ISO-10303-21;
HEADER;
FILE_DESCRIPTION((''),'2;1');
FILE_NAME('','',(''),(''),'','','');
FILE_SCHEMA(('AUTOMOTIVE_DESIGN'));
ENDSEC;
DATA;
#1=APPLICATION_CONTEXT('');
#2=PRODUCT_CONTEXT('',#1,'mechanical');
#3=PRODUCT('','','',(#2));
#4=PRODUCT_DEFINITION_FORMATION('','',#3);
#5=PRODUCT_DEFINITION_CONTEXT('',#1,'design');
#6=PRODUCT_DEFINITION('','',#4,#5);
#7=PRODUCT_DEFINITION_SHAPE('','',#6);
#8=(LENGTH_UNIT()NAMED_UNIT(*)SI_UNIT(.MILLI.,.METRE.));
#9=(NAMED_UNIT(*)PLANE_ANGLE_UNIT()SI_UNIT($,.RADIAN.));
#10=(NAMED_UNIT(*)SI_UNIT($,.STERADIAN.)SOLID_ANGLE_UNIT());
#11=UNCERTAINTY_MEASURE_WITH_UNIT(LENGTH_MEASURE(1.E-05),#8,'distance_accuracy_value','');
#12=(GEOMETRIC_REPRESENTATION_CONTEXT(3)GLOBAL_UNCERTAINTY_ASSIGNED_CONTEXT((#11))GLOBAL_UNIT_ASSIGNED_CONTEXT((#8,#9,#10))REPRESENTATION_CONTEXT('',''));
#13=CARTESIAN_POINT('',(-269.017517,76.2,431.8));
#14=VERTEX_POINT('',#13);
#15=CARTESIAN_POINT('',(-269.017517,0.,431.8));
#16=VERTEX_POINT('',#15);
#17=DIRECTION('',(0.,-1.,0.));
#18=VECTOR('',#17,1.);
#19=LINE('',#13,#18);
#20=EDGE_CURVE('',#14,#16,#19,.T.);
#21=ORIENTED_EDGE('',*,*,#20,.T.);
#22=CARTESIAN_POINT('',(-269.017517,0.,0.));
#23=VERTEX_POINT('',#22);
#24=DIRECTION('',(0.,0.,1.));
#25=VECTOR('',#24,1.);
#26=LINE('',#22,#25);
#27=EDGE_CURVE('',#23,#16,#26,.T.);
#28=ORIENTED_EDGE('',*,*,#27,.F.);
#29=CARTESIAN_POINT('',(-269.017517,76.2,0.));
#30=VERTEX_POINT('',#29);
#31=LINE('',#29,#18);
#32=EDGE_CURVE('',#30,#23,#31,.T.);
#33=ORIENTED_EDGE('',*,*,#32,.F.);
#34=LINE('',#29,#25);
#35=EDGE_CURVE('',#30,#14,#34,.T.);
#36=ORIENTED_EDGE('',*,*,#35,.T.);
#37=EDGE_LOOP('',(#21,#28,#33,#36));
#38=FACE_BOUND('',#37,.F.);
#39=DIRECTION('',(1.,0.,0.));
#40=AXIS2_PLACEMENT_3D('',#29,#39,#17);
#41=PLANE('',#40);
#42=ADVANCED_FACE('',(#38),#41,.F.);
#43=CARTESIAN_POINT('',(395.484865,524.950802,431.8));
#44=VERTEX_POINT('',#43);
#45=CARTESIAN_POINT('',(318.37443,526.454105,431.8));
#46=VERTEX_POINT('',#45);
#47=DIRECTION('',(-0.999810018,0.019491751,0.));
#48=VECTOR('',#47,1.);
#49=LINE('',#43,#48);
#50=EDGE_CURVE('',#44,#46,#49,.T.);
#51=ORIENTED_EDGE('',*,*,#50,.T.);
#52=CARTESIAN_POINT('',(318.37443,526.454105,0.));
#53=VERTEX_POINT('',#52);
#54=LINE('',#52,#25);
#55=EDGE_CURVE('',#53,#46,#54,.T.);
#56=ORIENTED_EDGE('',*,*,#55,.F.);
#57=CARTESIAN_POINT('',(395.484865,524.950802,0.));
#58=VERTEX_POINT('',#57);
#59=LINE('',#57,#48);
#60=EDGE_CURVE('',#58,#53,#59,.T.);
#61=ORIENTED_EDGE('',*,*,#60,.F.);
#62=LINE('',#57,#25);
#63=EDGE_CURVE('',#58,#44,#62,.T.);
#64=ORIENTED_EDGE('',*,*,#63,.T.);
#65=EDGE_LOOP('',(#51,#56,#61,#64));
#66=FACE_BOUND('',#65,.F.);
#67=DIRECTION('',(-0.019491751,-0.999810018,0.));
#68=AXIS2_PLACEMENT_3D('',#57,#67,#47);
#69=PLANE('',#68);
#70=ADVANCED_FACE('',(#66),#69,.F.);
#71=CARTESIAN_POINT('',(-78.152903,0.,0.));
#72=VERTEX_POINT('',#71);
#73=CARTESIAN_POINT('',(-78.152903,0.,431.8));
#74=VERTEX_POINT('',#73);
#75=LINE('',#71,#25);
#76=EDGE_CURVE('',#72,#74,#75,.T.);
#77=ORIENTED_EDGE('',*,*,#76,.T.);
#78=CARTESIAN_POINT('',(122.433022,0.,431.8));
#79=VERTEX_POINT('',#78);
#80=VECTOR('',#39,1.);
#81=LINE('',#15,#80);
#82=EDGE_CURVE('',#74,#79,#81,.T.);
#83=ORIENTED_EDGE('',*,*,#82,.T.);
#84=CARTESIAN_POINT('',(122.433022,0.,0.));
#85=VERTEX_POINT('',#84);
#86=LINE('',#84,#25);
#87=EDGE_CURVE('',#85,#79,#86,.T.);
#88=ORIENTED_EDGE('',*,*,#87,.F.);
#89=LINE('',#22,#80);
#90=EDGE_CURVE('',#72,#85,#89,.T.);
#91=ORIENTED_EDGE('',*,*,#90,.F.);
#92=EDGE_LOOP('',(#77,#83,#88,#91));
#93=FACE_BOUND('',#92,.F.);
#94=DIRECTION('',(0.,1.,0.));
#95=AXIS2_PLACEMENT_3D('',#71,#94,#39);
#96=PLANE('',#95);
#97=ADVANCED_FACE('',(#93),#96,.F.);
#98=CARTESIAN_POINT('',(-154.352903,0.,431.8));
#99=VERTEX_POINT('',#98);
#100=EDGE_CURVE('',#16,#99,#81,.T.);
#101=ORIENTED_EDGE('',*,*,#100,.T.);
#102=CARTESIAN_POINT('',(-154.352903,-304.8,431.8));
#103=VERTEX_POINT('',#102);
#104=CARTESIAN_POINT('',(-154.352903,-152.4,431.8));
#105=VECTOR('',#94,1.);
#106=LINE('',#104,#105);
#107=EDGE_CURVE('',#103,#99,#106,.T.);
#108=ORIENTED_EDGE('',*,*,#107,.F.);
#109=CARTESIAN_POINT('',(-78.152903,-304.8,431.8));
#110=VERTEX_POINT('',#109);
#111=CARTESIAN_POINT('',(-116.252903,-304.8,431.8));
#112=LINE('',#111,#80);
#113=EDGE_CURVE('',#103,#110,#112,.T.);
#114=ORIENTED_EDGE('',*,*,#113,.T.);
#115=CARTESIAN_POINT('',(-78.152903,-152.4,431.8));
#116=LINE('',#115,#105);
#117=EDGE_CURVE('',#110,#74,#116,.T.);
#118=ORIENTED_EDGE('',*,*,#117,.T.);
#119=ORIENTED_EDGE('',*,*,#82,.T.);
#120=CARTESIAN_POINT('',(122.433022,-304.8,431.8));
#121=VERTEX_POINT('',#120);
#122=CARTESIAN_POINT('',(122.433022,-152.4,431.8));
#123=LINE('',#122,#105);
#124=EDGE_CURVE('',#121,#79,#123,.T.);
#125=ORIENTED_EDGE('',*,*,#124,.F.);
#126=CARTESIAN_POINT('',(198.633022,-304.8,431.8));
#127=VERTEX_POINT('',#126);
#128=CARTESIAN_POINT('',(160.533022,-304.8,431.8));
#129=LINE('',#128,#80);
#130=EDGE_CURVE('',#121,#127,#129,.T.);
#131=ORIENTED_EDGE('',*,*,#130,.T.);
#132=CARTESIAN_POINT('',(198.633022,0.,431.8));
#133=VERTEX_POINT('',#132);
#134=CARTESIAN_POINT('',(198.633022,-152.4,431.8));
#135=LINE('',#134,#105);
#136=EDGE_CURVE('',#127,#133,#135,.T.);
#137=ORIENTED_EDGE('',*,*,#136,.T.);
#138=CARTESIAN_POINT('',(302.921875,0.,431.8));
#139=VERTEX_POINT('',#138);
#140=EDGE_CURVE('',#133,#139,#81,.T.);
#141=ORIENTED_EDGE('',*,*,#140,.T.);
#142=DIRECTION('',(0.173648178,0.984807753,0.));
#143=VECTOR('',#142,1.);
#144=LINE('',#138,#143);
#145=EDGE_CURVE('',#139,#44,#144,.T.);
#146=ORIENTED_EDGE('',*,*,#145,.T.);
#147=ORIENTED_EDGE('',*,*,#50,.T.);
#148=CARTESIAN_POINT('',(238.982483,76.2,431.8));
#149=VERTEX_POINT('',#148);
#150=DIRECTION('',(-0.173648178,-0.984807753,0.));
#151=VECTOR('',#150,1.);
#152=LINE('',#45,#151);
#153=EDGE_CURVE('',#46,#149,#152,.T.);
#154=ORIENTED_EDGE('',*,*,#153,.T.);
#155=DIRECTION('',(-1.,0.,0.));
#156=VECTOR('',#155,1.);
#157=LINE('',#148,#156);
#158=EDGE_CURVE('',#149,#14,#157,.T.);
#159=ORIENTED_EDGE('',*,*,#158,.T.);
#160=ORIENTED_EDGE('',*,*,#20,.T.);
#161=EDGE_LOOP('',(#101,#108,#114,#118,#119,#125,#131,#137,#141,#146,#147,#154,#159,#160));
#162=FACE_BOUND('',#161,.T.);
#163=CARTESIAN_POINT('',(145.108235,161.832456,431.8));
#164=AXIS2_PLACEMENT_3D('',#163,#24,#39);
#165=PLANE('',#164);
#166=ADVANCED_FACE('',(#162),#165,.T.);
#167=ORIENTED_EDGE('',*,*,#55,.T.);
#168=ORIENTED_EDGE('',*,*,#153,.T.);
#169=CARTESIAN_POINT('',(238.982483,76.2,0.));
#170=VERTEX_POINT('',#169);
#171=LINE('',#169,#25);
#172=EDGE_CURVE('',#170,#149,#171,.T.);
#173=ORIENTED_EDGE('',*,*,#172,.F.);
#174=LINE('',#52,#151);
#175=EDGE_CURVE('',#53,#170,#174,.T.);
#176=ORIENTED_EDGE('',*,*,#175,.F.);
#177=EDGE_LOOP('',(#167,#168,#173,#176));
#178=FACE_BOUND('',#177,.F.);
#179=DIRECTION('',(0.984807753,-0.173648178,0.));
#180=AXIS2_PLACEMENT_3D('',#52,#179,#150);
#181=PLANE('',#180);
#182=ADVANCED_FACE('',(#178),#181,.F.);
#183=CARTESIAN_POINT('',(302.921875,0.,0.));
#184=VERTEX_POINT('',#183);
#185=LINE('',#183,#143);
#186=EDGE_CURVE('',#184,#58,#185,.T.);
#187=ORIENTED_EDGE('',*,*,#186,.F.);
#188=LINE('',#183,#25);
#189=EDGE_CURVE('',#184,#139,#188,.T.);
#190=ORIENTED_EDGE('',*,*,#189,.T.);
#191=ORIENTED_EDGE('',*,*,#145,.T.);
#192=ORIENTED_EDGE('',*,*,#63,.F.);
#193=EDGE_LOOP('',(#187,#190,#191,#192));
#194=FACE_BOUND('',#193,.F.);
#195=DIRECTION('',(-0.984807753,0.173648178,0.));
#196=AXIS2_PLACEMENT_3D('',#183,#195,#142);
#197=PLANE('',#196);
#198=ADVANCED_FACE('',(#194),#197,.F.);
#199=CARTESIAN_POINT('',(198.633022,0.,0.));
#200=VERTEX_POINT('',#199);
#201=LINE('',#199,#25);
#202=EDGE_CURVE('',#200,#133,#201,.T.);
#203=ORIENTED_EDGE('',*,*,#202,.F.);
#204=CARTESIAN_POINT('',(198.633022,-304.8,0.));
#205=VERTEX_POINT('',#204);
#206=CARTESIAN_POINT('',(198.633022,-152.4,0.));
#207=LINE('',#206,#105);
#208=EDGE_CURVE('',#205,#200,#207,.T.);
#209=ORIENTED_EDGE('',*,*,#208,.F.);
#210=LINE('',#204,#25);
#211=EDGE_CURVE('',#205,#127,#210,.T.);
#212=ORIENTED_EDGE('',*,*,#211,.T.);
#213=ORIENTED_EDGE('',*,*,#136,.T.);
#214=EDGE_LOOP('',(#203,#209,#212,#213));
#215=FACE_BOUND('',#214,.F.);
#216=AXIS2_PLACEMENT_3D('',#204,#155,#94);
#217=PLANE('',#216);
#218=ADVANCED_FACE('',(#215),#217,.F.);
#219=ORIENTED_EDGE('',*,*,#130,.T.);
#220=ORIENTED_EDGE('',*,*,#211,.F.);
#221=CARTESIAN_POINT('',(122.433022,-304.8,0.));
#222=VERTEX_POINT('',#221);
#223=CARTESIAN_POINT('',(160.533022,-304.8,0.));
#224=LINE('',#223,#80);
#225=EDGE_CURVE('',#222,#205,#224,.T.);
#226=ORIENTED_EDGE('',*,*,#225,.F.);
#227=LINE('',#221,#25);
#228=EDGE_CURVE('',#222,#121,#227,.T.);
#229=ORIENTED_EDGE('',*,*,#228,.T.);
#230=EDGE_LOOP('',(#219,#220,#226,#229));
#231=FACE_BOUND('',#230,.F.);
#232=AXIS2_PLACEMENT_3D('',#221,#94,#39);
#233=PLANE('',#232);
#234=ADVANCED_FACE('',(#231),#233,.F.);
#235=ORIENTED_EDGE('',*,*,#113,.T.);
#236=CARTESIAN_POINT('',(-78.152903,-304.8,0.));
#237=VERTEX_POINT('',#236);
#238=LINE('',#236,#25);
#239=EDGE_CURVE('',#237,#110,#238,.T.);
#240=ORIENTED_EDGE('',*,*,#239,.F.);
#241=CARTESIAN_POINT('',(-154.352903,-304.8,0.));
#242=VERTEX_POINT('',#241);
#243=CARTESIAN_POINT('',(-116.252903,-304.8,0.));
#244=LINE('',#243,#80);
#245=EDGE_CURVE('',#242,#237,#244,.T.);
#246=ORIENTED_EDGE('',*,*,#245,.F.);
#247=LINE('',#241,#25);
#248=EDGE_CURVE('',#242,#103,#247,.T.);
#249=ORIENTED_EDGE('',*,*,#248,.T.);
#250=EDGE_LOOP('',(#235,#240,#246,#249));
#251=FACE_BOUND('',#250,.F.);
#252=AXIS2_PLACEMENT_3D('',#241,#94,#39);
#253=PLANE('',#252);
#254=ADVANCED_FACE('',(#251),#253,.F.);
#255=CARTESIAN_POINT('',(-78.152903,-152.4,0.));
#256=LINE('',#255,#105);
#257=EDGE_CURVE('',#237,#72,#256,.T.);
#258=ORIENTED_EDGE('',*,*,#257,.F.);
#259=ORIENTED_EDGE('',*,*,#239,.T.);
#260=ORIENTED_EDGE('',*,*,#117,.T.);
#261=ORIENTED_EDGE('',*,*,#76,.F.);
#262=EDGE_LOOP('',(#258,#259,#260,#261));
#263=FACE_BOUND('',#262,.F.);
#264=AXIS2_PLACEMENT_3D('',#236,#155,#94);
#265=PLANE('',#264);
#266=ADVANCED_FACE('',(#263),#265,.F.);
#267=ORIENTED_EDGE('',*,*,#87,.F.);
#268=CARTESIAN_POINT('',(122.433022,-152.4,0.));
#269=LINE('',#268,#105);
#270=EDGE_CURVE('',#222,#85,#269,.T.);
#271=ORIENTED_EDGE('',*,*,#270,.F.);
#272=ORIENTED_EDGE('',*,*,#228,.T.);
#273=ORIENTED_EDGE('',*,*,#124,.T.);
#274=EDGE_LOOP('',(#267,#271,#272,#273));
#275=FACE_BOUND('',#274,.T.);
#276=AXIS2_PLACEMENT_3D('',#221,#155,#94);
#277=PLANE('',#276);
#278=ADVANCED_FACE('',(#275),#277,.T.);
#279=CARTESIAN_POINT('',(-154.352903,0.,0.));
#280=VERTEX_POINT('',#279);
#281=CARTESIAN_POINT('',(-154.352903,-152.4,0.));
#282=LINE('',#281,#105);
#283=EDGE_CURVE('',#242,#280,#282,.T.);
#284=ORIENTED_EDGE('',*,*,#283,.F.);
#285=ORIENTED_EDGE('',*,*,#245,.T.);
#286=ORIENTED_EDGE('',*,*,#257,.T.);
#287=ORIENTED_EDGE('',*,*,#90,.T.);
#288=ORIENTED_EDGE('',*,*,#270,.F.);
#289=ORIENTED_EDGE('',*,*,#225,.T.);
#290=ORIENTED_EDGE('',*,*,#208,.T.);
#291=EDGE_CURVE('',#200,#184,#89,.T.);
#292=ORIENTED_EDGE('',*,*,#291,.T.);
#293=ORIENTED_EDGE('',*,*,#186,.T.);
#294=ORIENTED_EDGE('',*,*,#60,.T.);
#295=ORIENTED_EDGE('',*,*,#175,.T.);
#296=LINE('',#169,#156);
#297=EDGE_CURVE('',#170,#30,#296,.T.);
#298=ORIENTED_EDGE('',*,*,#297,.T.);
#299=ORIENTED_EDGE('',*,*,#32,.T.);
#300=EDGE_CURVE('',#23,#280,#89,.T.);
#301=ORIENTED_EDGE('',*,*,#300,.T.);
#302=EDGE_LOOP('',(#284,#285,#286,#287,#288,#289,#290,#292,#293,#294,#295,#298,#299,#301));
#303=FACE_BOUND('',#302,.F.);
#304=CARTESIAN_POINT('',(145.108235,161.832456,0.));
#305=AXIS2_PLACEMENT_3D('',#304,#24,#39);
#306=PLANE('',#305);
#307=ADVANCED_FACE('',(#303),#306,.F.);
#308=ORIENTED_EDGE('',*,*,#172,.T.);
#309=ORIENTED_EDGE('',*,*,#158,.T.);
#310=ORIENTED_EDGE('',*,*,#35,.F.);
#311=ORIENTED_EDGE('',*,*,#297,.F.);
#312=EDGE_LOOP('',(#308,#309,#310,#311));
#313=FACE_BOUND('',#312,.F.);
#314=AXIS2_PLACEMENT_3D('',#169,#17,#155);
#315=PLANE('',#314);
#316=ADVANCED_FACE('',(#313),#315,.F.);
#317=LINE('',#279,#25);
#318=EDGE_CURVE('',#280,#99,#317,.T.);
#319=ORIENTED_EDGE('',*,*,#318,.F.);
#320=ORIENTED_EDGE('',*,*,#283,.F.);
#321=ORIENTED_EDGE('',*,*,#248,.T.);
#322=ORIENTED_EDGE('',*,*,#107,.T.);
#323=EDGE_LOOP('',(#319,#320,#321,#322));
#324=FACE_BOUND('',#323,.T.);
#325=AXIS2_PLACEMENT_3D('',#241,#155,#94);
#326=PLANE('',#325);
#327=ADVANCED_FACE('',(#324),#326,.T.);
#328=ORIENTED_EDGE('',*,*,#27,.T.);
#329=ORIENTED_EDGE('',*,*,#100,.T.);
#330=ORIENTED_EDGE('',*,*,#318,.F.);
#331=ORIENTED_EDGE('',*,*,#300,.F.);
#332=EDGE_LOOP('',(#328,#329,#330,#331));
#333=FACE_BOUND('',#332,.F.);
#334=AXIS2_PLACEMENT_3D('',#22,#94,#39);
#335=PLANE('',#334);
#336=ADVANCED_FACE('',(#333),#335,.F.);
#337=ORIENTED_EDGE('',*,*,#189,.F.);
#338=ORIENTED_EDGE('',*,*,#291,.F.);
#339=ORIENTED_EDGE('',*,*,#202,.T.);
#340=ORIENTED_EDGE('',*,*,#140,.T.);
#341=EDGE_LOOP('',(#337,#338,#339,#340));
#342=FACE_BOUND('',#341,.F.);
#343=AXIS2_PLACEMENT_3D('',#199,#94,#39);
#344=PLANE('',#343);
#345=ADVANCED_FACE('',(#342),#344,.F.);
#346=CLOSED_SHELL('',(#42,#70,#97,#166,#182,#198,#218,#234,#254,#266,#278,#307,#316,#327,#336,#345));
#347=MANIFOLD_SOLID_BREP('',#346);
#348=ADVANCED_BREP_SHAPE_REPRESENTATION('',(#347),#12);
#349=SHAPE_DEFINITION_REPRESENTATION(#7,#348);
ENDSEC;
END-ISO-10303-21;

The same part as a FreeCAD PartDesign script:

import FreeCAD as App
import Part
import Sketcher

V = App.Vector
Q = App.Units.Quantity


def add_polygon(sketch, points):
    """Adds a closed chain of lines whose ends are joined by coincident constraints."""
    first, n = sketch.GeometryCount, len(points)
    for a, b in zip(points, points[1:] + points[:1]):
        sketch.addGeometry(Part.LineSegment(App.Vector(*a, 0), App.Vector(*b, 0)), False)
    for i in range(n):
        sketch.addConstraint(Sketcher.Constraint("Coincident", first + i, 2, first + (i + 1) % n, 1))

doc = App.newDocument("Part")
body = doc.addObject("PartDesign::Body", "Body")

# Sketch on XY plane
sketch1 = body.newObject("Sketcher::SketchObject", "Sketch")
sketch1.AttachmentSupport = (doc.getObject("XY_Plane"), [""])
sketch1.MapMode = "FlatFace"
add_polygon(sketch1, [(-269, 76), (-269, 0), (-154, 0), (-154, -305), (-78, -305), (-78, 0), (122, 0), (122, -305), (199, -305), (199, 0), (303, 0), (395, 525), (318, 526), (239, 76)])  # lines 0-13
sketch1.addConstraint([
    Sketcher.Constraint("Vertical", 0),
    Sketcher.Constraint("Horizontal", 1),
    Sketcher.Constraint("Vertical", 2),
    Sketcher.Constraint("Horizontal", 3),
    Sketcher.Constraint("Vertical", 4),
    Sketcher.Constraint("Horizontal", 5),
    Sketcher.Constraint("Vertical", 6),
    Sketcher.Constraint("Horizontal", 7),
    Sketcher.Constraint("Vertical", 8),
    Sketcher.Constraint("Horizontal", 9),
    Sketcher.Constraint("Horizontal", 13),
    Sketcher.Constraint("PointOnObject", 0, 2, -1),
    Sketcher.Constraint("PointOnObject", 4, 2, -1),
    Sketcher.Constraint("PointOnObject", 8, 2, -1),
    Sketcher.Constraint("Parallel", 10, 12),
    Sketcher.Constraint("Horizontal", 3, 2, 6, 2),
    Sketcher.Constraint("Equal", 3, 7),
    Sketcher.Constraint("Equal", 7, 0),
    Sketcher.Constraint("DistanceX", 3, 1, 3, 2, Q("3 in")),
    Sketcher.Constraint("DistanceX", 13, 2, 13, 1, Q("20 in")),
    Sketcher.Constraint("DistanceY", 2, 2, 2, 1, Q("12 in")),
    Sketcher.Constraint("Distance", 12, Q("18 in")),
    Sketcher.Constraint("Angle", 10, Q("80 deg")),
    Sketcher.Constraint("DistanceY", -1, 1, 10, 2, Q("524.950802 mm")),
    Sketcher.Constraint("DistanceX", 1, 1, 1, 2, Q("114.664614 mm")),
    Sketcher.Constraint("DistanceX", 5, 1, 5, 2, Q("200.585925 mm")),
    Sketcher.Constraint("DistanceX", 9, 1, 9, 2, Q("104.288853 mm")),
    Sketcher.Constraint("DistanceX", -1, 1, 5, 2, Q("122.433022 mm")),
])
pad1 = body.newObject("PartDesign::Pad", "Pad")
pad1.Profile = sketch1
pad1.Length = Q("17 in")

doc.recompute()
